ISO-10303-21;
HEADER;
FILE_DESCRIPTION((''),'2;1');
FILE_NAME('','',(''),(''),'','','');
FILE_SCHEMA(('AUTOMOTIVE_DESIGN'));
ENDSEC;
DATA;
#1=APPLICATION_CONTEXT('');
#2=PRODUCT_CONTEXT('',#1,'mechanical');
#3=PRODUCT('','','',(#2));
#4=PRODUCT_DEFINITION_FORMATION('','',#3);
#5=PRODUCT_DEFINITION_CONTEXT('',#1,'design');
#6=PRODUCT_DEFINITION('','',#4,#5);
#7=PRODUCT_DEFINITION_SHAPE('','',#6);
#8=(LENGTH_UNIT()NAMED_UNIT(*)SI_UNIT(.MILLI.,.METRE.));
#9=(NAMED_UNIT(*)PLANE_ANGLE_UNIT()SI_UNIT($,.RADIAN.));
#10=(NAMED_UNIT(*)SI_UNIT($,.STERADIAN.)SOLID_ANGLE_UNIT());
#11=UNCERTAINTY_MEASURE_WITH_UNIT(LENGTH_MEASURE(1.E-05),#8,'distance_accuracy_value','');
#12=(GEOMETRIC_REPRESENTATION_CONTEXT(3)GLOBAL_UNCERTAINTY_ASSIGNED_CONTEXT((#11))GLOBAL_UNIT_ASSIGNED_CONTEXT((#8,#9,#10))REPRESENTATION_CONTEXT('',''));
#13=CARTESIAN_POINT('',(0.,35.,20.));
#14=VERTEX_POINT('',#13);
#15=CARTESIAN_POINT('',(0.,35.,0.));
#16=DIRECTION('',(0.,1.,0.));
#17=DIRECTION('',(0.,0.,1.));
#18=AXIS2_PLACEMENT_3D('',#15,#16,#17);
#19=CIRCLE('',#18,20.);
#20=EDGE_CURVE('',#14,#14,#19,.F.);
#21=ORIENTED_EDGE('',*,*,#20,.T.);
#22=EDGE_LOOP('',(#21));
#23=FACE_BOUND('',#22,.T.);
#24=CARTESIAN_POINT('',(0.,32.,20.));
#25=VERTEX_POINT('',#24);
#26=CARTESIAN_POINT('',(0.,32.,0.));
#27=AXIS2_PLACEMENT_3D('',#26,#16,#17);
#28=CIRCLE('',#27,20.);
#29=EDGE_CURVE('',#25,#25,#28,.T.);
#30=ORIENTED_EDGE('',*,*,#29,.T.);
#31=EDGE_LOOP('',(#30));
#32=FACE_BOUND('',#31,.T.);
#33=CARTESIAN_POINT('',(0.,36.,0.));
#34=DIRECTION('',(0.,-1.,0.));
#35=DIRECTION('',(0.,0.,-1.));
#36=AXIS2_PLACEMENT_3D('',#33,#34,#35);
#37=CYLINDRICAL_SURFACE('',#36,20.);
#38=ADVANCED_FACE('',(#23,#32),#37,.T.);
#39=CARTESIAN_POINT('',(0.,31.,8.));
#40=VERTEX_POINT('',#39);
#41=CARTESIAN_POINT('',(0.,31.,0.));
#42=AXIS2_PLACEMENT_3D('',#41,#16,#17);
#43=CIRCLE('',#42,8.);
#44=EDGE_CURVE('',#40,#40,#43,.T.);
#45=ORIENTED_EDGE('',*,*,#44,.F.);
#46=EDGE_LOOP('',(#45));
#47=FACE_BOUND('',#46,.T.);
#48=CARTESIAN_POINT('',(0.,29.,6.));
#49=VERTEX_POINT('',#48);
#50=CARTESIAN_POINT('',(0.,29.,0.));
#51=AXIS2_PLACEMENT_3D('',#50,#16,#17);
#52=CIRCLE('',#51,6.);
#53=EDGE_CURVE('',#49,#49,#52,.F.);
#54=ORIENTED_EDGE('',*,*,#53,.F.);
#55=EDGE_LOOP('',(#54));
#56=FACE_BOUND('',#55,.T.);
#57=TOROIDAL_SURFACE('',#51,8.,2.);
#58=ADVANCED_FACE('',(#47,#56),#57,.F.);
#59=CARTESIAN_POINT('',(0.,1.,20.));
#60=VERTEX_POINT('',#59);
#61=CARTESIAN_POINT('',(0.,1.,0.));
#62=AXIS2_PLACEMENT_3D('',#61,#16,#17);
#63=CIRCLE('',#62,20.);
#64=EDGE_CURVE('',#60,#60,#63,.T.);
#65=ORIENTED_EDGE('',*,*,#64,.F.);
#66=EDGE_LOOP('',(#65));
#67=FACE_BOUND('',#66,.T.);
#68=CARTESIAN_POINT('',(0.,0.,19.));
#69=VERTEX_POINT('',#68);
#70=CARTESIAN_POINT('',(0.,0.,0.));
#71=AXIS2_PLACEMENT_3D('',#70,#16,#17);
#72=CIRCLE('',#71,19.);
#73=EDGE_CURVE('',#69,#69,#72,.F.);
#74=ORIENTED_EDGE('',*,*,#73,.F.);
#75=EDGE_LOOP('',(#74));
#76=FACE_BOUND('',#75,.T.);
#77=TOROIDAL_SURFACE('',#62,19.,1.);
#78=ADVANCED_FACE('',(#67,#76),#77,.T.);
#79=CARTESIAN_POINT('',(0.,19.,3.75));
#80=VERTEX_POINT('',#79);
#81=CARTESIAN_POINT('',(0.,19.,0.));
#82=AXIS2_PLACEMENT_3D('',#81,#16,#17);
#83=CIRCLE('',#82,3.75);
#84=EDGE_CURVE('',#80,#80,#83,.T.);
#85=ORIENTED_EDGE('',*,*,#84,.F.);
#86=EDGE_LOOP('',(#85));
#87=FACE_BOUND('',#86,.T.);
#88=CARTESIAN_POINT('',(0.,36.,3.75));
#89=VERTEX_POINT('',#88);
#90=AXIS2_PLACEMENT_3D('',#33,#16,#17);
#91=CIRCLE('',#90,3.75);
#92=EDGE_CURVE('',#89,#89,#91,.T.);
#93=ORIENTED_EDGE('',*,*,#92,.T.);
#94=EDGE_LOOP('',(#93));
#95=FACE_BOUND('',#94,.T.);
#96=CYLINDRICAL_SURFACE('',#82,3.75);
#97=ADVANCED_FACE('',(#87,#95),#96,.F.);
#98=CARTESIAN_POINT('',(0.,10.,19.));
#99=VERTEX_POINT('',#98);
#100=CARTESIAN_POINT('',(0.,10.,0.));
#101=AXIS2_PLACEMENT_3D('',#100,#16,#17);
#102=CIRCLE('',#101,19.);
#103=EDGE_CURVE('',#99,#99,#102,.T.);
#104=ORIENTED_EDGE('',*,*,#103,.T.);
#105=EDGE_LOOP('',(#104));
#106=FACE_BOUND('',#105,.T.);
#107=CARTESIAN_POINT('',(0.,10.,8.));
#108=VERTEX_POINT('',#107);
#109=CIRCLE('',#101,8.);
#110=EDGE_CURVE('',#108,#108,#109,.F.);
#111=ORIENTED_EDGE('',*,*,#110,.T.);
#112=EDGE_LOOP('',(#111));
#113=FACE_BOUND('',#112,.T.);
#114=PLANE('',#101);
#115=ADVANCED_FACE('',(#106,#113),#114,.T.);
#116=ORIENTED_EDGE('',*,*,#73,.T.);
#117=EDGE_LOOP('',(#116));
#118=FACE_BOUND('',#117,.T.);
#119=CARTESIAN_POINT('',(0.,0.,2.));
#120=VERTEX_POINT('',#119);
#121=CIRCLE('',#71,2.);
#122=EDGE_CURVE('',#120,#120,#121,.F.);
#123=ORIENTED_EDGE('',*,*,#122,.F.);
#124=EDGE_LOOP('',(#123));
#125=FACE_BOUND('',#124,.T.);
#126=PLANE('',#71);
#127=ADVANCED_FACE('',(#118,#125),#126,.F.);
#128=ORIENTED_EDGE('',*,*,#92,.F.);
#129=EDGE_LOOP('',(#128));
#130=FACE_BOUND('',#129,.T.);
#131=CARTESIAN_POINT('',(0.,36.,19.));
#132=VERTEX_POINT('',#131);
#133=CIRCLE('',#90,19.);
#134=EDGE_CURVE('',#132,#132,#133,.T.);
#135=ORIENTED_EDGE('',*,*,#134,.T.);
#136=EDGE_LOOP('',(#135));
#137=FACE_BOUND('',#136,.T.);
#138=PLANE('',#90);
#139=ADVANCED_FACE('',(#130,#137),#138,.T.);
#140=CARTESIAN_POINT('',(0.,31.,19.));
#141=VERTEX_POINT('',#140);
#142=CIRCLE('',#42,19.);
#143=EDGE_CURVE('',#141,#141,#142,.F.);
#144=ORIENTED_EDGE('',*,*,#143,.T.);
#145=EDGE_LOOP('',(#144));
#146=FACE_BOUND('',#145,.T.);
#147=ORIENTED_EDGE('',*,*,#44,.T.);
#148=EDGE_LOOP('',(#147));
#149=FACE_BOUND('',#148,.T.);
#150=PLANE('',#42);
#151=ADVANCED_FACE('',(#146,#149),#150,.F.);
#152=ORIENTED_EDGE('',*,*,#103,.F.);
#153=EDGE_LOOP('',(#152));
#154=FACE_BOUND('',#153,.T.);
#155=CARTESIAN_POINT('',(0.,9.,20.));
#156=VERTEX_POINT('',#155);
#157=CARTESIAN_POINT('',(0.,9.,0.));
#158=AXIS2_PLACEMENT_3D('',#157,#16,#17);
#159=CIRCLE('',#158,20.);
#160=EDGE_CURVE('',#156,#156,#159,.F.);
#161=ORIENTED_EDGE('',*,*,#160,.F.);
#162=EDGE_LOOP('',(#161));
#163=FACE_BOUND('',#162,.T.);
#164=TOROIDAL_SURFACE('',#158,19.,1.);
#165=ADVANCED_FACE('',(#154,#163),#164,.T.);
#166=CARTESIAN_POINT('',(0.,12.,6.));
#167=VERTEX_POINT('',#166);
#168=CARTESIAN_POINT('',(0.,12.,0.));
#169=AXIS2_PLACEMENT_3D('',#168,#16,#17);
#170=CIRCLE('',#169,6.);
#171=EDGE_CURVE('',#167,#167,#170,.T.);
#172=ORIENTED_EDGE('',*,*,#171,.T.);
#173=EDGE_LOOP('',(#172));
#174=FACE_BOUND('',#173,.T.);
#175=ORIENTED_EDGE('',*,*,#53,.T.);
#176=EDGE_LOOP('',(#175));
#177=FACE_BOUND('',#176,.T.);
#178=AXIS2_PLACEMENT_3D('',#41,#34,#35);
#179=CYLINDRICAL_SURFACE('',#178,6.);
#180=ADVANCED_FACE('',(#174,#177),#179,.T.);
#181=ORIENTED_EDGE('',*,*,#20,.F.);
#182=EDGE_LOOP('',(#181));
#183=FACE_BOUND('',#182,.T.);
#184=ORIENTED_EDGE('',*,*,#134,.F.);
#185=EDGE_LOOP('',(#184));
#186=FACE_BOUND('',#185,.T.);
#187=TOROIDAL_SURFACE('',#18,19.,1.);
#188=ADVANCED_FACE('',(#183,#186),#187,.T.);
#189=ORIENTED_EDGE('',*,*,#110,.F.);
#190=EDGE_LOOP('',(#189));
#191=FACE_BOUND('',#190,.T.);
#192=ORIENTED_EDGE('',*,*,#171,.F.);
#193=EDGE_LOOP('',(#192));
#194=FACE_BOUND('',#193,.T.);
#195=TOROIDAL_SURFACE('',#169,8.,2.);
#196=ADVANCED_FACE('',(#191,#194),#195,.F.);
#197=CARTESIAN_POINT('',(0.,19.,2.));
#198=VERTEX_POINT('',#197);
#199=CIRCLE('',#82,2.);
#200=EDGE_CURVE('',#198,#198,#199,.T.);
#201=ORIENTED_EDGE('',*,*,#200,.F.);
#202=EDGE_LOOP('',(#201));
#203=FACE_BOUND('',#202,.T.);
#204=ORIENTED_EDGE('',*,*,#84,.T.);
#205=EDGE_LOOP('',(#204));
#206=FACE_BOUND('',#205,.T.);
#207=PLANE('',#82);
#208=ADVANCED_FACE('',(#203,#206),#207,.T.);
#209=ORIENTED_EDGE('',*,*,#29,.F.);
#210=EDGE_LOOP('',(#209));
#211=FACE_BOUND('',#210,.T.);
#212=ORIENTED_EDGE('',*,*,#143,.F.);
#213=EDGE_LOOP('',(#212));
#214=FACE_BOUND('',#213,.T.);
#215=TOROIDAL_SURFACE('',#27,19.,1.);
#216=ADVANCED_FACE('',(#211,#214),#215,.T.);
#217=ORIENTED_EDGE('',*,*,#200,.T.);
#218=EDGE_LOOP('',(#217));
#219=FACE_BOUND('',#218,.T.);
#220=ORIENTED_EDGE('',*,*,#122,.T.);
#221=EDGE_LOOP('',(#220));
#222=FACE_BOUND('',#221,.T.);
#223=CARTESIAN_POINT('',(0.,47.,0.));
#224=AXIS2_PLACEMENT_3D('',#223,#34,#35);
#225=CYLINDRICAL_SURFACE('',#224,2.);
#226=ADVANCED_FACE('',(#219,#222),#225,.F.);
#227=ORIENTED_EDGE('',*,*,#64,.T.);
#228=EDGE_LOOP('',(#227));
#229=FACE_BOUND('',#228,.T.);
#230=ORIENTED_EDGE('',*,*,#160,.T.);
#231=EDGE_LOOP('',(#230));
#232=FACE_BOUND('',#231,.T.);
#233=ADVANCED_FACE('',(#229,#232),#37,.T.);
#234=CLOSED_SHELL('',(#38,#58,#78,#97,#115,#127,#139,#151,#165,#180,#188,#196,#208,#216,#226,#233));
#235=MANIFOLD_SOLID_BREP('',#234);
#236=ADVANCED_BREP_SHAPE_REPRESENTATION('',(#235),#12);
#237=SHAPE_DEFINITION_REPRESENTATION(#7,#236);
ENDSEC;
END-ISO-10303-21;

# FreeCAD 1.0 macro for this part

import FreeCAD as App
import Part
import Sketcher
from FreeCAD import Vector


def edges_at(feature, points):
    """Names of the edges that pass closest to the given points."""
    edges = feature.Shape.Edges
    near = lambda p: min(range(len(edges)), key=lambda i: edges[i].distToShape(Part.Vertex(*p))[0])
    return sorted({f"Edge{near(p) + 1}" for p in points})

doc = App.newDocument("Part")
body = doc.addObject("PartDesign::Body", "Body")

# Sketch on XZ plane
sketch1 = body.newObject("Sketcher::SketchObject", "Sketch")
sketch1.AttachmentSupport = (doc.getObject("XZ_Plane"), [""])
sketch1.MapMode = "FlatFace"
sketch1.addGeometry(Part.Circle(Vector(0, 0, 0), Vector(0, 0, 1), 20), False)
sketch1.addConstraint([
    Sketcher.Constraint("Coincident", 0, 3, -1, 1),
    Sketcher.Constraint("Diameter", 0, 40.0),
])
pad1 = body.newObject("PartDesign::Pad", "Pad")
pad1.Profile = sketch1
pad1.Length = 36
pad1.Reversed = True

# Sketch on XZ plane
sketch2 = body.newObject("Sketcher::SketchObject", "Sketch001")
sketch2.AttachmentSupport = (doc.getObject("XZ_Plane"), [""])
sketch2.MapMode = "FlatFace"
sketch2.AttachmentOffset = App.Placement(Vector(0, 0, -10), App.Rotation())
sketch2.addGeometry([
    Part.Circle(Vector(0, 0, 0), Vector(0, 0, 1), 20),
    Part.Circle(Vector(0, 0, 0), Vector(0, 0, 1), 6),
], False)
sketch2.addConstraint([
    Sketcher.Constraint("Coincident", 0, 3, -1, 1),
    Sketcher.Constraint("Coincident", 1, 3, -1, 1),
    Sketcher.Constraint("Diameter", 0, 40.0),
    Sketcher.Constraint("Diameter", 1, 12.0),
])
pocket1 = body.newObject("PartDesign::Pocket", "Pocket")
pocket1.Profile = sketch2
pocket1.Length = 21

# Sketch on XZ plane
sketch3 = body.newObject("Sketcher::SketchObject", "Sketch002")
sketch3.AttachmentSupport = (doc.getObject("XZ_Plane"), [""])
sketch3.MapMode = "FlatFace"
sketch3.addGeometry(Part.Circle(Vector(0, 0, 0), Vector(0, 0, 1), 2), False)
sketch3.addConstraint([
    Sketcher.Constraint("Coincident", 0, 3, -1, 1),
    Sketcher.Constraint("Diameter", 0, 4.0),
])
pocket2 = body.newObject("PartDesign::Pocket", "Pocket001")
pocket2.Profile = sketch3
pocket2.Type = "ThroughAll"
pocket2.Midplane = True

# Sketch on XZ plane
sketch4 = body.newObject("Sketcher::SketchObject", "Sketch003")
sketch4.AttachmentSupport = (doc.getObject("XZ_Plane"), [""])
sketch4.MapMode = "FlatFace"
sketch4.AttachmentOffset = App.Placement(Vector(0, 0, -36), App.Rotation())
sketch4.addGeometry(Part.Circle(Vector(0, 0, 0), Vector(0, 0, 1), 3.8), False)
sketch4.addConstraint([
    Sketcher.Constraint("Coincident", 0, 3, -1, 1),
    Sketcher.Constraint("Diameter", 0, 7.5),
])
pocket3 = body.newObject("PartDesign::Pocket", "Pocket002")
pocket3.Profile = sketch4
pocket3.Length = 17
pocket3.Reversed = True
doc.recompute()

fillet = body.newObject("PartDesign::Fillet", "Fillet")
fillet.Base = (pocket3, edges_at(pocket3, [(-6, 31, 0), (-6, 10, 0)]))
fillet.Radius = 2
doc.recompute()

fillet2 = body.newObject("PartDesign::Fillet", "Fillet001")
fillet2.Base = (fillet, edges_at(fillet, [
    (-20, 0, 0),
    (-20, 36, 0),
    (-20, 10, 0),
    (-20, 31, 0),
]))
fillet2.Radius = 1

doc.recompute()
